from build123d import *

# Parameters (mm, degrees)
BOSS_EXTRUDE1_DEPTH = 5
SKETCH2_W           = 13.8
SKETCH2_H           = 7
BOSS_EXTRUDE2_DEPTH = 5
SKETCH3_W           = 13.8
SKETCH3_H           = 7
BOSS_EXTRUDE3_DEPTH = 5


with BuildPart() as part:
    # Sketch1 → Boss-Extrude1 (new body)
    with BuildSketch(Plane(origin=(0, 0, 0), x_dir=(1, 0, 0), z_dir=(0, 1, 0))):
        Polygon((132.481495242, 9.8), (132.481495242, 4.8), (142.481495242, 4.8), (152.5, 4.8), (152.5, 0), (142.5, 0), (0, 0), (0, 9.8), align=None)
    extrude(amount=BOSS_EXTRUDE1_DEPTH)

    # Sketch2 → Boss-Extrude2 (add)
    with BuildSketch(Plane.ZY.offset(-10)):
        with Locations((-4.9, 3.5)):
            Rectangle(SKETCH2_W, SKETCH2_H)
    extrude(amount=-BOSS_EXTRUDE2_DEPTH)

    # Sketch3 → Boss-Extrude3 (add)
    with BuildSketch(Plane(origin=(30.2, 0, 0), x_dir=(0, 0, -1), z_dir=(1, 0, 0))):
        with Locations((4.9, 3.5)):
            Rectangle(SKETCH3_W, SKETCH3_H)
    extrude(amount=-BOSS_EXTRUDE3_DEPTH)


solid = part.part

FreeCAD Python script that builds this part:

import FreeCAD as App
import Part
import Sketcher
from FreeCAD import Vector


def add_polygon(sketch, points):
    """Adds a closed chain of lines whose ends are joined by coincident constraints."""
    first, n = sketch.GeometryCount, len(points)
    for a, b in zip(points, points[1:] + points[:1]):
        sketch.addGeometry(Part.LineSegment(App.Vector(*a, 0), App.Vector(*b, 0)), False)
    for i in range(n):
        sketch.addConstraint(Sketcher.Constraint("Coincident", first + i, 2, first + (i + 1) % n, 1))

doc = App.newDocument("Part")
params = doc.addObject("Spreadsheet::Sheet", "Params")
for row, (alias, value) in enumerate([
    ("sketch1_height", "5 mm"),
    ("sketch1_width", "152.5 mm"),
    ("sketch1_height2", "9.8 mm"),
    ("pad1_length", "5 mm"),
    ("sketch2_width", "7 mm"),
    ("sketch2_height", "13.8 mm"),
    ("pad2_length", "5 mm"),
    ("sketch3_width", "7 mm"),
    ("sketch3_height", "13.8 mm"),
    ("pad3_length", "5 mm"),
], start=1):
    params.set(f"A{row}", alias)
    params.set(f"B{row}", "=" + value)
    params.setAlias(f"B{row}", alias)

body = doc.addObject("PartDesign::Body", "Body")

# Sketch on XZ plane
sketch1 = body.newObject("Sketcher::SketchObject", "Sketch")
sketch1.AttachmentSupport = (doc.getObject("XZ_Plane"), [""])
sketch1.MapMode = "FlatFace"
add_polygon(sketch1, [(132.5, -4.8), (132.5, -9.8), (0, -9.8), (0, 0), (152.5, 0), (152.5, -4.8)])  # lines 0-5
sketch1.addConstraint(Sketcher.Constraint("Vertical", 0))
sketch1.addConstraint(Sketcher.Constraint("Horizontal", 1))
sketch1.addConstraint(Sketcher.Constraint("Vertical", 2))
sketch1.addConstraint(Sketcher.Constraint("Horizontal", 3))
sketch1.addConstraint(Sketcher.Constraint("Vertical", 4))
sketch1.addConstraint(Sketcher.Constraint("Horizontal", 5))
sketch1.addConstraint(Sketcher.Constraint("Coincident", 2, 2, -1, 1))
sketch1.addConstraint(Sketcher.Constraint("DistanceY", 0, 2, 0, 1, 5.0))
sketch1.addConstraint(Sketcher.Constraint("DistanceX", 3, 1, 3, 2, 152.5))
sketch1.addConstraint(Sketcher.Constraint("DistanceY", 2, 1, 2, 2, 9.8))
sketch1.addConstraint(Sketcher.Constraint("DistanceX", 1, 2, 1, 1, 132.481495))
sketch1.setExpression("Constraints[13]", "Params.sketch1_height")
sketch1.setExpression("Constraints[14]", "Params.sketch1_width")
sketch1.setExpression("Constraints[15]", "Params.sketch1_height2")
pad1 = body.newObject("PartDesign::Pad", "Pad")
pad1.Profile = sketch1
pad1.setExpression("Length", "Params.pad1_length")
pad1.Reversed = True

# Sketch on YZ plane
sketch2 = body.newObject("Sketcher::SketchObject", "Sketch001")
sketch2.AttachmentSupport = (doc.getObject("YZ_Plane"), [""])
sketch2.MapMode = "FlatFace"
sketch2.AttachmentOffset = App.Placement(Vector(0, 0, 10), App.Rotation())
add_polygon(sketch2, [(7, -12), (0, -12), (0, 2), (7, 2)])  # lines 0-3
sketch2.addConstraint(Sketcher.Constraint("Horizontal", 0))
sketch2.addConstraint(Sketcher.Constraint("Vertical", 1))
sketch2.addConstraint(Sketcher.Constraint("Horizontal", 2))
sketch2.addConstraint(Sketcher.Constraint("Vertical", 3))
sketch2.addConstraint(Sketcher.Constraint("PointOnObject", 0, 2, -2))
sketch2.addConstraint(Sketcher.Constraint("DistanceX", 0, 2, 0, 1, 7.0))
sketch2.addConstraint(Sketcher.Constraint("DistanceY", 1, 1, 1, 2, 13.8))
sketch2.addConstraint(Sketcher.Constraint("DistanceY", -1, 1, 1, 2, 2.0))
sketch2.setExpression("Constraints[9]", "Params.sketch2_width")
sketch2.setExpression("Constraints[10]", "Params.sketch2_height")
pad2 = body.newObject("PartDesign::Pad", "Pad001")
pad2.Profile = sketch2
pad2.setExpression("Length", "Params.pad2_length")

# Sketch on YZ plane
sketch3 = body.newObject("Sketcher::SketchObject", "Sketch002")
sketch3.AttachmentSupport = (doc.getObject("YZ_Plane"), [""])
sketch3.MapMode = "FlatFace"
sketch3.AttachmentOffset = App.Placement(Vector(0, 0, 30.2), App.Rotation())
add_polygon(sketch3, [(7, 2), (0, 2), (0, -12), (7, -12)])  # lines 0-3
sketch3.addConstraint(Sketcher.Constraint("Horizontal", 0))
sketch3.addConstraint(Sketcher.Constraint("Vertical", 1))
sketch3.addConstraint(Sketcher.Constraint("Horizontal", 2))
sketch3.addConstraint(Sketcher.Constraint("Vertical", 3))
sketch3.addConstraint(Sketcher.Constraint("PointOnObject", 0, 2, -2))
sketch3.addConstraint(Sketcher.Constraint("DistanceX", 0, 2, 0, 1, 7.0))
sketch3.addConstraint(Sketcher.Constraint("DistanceY", 1, 2, 1, 1, 13.8))
sketch3.addConstraint(Sketcher.Constraint("DistanceY", -1, 1, 0, 2, 2.0))
sketch3.setExpression("Constraints[9]", "Params.sketch3_width")
sketch3.setExpression("Constraints[10]", "Params.sketch3_height")
pad3 = body.newObject("PartDesign::Pad", "Pad002")
pad3.Profile = sketch3
pad3.setExpression("Length", "Params.pad3_length")
pad3.Reversed = True

doc.recompute()
